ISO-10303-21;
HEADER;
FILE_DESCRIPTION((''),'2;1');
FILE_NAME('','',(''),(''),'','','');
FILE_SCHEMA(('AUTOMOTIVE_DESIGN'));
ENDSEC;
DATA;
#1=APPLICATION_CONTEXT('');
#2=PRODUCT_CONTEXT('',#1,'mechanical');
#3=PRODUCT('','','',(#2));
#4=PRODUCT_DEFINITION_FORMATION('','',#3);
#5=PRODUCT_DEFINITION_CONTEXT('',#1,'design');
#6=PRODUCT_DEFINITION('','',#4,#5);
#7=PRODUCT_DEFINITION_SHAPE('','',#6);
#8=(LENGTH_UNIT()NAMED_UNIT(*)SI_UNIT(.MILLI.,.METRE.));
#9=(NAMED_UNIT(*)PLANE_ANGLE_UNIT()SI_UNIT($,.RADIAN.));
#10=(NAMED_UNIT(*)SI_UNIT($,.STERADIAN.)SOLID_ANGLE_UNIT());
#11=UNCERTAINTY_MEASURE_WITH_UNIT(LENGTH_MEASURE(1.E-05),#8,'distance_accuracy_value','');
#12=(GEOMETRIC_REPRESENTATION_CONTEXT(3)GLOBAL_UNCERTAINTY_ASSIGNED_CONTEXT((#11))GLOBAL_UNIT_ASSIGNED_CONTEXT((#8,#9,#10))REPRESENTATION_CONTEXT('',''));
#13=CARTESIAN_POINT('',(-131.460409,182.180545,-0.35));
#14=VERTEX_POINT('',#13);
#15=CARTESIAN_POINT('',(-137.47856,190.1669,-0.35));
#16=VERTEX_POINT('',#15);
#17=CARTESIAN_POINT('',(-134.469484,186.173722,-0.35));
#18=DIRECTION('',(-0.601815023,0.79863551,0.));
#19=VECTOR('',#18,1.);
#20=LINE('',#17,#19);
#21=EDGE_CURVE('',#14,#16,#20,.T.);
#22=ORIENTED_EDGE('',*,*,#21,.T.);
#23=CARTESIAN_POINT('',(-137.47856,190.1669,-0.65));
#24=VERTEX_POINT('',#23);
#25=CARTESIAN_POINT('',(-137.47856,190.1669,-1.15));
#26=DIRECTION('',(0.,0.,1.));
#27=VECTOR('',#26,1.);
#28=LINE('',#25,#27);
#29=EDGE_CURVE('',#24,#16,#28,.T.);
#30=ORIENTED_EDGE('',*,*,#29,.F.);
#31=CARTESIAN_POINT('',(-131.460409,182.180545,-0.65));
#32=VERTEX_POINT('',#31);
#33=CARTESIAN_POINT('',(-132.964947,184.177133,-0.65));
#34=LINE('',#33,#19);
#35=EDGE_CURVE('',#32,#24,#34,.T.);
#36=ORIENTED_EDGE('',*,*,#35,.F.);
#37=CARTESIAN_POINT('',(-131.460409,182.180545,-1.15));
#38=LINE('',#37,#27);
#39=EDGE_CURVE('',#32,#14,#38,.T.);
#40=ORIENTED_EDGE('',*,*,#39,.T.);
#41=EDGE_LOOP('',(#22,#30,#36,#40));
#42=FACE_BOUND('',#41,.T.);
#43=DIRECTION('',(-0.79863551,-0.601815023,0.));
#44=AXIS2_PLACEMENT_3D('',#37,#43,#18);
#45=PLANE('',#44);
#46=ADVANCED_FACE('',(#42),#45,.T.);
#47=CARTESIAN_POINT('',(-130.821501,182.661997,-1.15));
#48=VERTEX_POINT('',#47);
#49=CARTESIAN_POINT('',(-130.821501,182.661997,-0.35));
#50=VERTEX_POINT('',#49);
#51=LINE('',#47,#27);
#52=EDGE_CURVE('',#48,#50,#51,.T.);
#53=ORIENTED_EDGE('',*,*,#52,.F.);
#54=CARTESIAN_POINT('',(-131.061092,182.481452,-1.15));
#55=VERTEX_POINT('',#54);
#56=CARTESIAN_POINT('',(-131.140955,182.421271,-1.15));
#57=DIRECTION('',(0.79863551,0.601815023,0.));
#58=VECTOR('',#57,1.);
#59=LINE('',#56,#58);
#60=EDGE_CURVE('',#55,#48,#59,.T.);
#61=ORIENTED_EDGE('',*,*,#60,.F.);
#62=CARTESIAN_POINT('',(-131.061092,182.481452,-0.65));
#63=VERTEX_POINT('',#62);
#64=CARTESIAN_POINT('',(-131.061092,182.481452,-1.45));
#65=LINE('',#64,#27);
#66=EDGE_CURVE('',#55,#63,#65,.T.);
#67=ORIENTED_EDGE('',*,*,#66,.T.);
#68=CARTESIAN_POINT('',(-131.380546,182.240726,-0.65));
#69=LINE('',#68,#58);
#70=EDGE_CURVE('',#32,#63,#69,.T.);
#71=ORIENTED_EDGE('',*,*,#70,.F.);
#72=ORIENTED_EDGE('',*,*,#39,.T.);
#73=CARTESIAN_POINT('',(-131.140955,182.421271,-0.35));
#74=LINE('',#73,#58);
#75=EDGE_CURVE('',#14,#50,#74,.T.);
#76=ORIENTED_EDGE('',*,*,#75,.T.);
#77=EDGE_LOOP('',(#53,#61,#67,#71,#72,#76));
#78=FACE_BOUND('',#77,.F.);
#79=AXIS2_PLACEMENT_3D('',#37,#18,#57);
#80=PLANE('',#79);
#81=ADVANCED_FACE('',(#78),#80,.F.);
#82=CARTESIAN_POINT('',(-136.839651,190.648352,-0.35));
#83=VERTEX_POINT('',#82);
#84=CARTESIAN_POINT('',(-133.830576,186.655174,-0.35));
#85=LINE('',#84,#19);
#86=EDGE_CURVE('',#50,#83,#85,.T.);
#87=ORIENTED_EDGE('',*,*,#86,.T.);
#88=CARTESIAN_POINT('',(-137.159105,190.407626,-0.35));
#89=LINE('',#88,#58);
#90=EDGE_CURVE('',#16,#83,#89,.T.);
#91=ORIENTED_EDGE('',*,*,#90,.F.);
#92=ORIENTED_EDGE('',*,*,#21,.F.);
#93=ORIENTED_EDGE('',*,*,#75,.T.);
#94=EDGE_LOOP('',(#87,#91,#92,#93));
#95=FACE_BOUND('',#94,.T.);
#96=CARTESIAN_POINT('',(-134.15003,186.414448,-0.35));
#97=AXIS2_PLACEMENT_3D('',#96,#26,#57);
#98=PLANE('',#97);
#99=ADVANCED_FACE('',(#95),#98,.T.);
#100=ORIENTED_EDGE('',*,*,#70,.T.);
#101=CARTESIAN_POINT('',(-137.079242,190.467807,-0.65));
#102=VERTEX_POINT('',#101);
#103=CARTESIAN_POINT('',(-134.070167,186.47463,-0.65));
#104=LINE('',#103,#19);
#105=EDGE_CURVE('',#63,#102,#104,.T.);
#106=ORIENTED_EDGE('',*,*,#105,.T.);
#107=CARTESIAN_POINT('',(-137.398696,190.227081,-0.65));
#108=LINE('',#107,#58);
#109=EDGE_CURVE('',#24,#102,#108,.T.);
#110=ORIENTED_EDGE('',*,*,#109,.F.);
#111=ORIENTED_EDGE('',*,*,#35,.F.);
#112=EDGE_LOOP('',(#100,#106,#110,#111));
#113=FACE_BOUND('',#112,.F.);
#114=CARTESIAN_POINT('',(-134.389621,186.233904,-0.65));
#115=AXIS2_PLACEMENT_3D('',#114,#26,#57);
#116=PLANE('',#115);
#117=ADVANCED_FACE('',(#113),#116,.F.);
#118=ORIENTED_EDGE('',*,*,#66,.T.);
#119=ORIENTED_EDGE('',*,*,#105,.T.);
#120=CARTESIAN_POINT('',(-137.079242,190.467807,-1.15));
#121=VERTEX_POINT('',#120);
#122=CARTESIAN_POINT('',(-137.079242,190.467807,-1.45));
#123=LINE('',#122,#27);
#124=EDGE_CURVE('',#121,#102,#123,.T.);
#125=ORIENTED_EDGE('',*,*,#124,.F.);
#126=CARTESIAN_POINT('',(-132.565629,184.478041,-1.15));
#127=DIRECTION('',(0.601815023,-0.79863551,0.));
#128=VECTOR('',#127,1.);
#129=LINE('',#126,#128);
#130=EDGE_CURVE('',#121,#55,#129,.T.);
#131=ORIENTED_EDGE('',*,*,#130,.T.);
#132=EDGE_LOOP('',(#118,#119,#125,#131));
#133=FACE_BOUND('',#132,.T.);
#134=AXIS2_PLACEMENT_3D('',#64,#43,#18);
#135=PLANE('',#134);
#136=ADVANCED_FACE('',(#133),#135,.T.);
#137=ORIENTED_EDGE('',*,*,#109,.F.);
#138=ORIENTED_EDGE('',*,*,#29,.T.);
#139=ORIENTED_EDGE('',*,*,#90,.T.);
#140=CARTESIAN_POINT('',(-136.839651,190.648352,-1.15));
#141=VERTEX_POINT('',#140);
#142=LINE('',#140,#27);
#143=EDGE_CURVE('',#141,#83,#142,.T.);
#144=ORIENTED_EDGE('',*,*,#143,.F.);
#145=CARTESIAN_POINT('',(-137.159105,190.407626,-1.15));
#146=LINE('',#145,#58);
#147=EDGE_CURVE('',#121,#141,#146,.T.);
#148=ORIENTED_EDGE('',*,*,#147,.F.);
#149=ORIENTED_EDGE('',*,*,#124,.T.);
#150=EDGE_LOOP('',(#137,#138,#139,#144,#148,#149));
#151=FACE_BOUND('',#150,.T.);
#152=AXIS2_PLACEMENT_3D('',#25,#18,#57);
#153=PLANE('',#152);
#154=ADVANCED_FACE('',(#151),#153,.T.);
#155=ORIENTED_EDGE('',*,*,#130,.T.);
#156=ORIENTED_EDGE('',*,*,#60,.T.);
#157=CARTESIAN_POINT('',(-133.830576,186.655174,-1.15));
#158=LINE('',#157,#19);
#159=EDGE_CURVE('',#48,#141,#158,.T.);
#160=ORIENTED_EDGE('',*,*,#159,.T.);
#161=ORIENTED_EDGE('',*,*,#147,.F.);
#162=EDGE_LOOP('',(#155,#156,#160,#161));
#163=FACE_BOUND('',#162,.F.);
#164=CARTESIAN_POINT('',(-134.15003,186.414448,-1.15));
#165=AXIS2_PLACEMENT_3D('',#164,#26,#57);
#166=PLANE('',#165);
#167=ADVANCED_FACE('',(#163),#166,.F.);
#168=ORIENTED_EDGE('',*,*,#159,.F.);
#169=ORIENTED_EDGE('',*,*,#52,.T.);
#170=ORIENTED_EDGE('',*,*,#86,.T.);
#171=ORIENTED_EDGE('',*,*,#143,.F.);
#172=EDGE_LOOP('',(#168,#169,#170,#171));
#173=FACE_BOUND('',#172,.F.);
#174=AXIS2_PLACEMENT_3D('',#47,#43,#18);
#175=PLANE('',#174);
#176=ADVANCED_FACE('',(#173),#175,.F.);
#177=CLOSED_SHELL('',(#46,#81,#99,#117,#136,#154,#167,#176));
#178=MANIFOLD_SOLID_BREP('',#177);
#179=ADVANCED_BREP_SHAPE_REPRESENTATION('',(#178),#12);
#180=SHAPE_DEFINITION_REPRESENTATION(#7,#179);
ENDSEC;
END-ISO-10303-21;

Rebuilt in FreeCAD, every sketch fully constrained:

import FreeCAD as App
import Part
import Sketcher

doc = App.newDocument("Part")
body = doc.addObject("PartDesign::Body", "Body")

# Sketch on XY plane
sketch1 = body.newObject("Sketcher::SketchObject", "Sketch")
sketch1.AttachmentSupport = (doc.getObject("XY_Plane"), [""])
sketch1.MapMode = "FlatFace"
sketch1.addGeometry(Part.LineSegment(App.Vector(0, 10, 0), App.Vector(0, 0, 0)), False)
sketch1.addGeometry(Part.LineSegment(App.Vector(0, 0, 0), App.Vector(0.8, 0, 0)), False)
sketch1.addGeometry(Part.LineSegment(App.Vector(0.8, 0, 0), App.Vector(0.8, 10, 0)), False)
sketch1.addGeometry(Part.LineSegment(App.Vector(0.8, 10, 0), App.Vector(0, 10, 0)), False)
sketch1.addConstraint(Sketcher.Constraint("Coincident", 0, 2, 1, 1))
sketch1.addConstraint(Sketcher.Constraint("Coincident", 1, 2, 2, 1))
sketch1.addConstraint(Sketcher.Constraint("Coincident", 2, 2, 3, 1))
sketch1.addConstraint(Sketcher.Constraint("Coincident", 3, 2, 0, 1))
sketch1.addConstraint(Sketcher.Constraint("Vertical", 0))
sketch1.addConstraint(Sketcher.Constraint("Horizontal", 1))
sketch1.addConstraint(Sketcher.Constraint("Vertical", 2))
sketch1.addConstraint(Sketcher.Constraint("Horizontal", 3))
sketch1.addConstraint(Sketcher.Constraint("Coincident", 0, 2, -1, 1))
sketch1.addConstraint(Sketcher.Constraint("DistanceY", 0, 2, 0, 1, 10.0))
sketch1.addConstraint(Sketcher.Constraint("DistanceX", 1, 1, 1, 2, 0.8))
pad1 = body.newObject("PartDesign::Pad", "Pad")
pad1.Profile = sketch1
pad1.Length = 0.8
body2 = doc.addObject("PartDesign::Body", "Body001")

# Sketch on XY plane
sketch2 = body2.newObject("Sketcher::SketchObject", "Sketch001")
sketch2.AttachmentSupport = (doc.getObject("XY_Plane001"), [""])
sketch2.MapMode = "FlatFace"
sketch2.AttachmentOffset = App.Placement(App.Vector(0, 0, 0.3), App.Rotation())
sketch2.addGeometry(Part.LineSegment(App.Vector(0.3, 10, 0), App.Vector(0.3, 0, 0)), False)
sketch2.addGeometry(Part.LineSegment(App.Vector(0.3, 0, 0), App.Vector(1.1, 0, 0)), False)
sketch2.addGeometry(Part.LineSegment(App.Vector(1.1, 0, 0), App.Vector(1.1, 10, 0)), False)
sketch2.addGeometry(Part.LineSegment(App.Vector(1.1, 10, 0), App.Vector(0.3, 10, 0)), False)
sketch2.addConstraint(Sketcher.Constraint("Coincident", 0, 2, 1, 1))
sketch2.addConstraint(Sketcher.Constraint("Coincident", 1, 2, 2, 1))
sketch2.addConstraint(Sketcher.Constraint("Coincident", 2, 2, 3, 1))
sketch2.addConstraint(Sketcher.Constraint("Coincident", 3, 2, 0, 1))
sketch2.addConstraint(Sketcher.Constraint("Vertical", 0))
sketch2.addConstraint(Sketcher.Constraint("Horizontal", 1))
sketch2.addConstraint(Sketcher.Constraint("Vertical", 2))
sketch2.addConstraint(Sketcher.Constraint("Horizontal", 3))
sketch2.addConstraint(Sketcher.Constraint("PointOnObject", 0, 2, -1))
sketch2.addConstraint(Sketcher.Constraint("DistanceY", 0, 2, 0, 1, 10.0))
sketch2.addConstraint(Sketcher.Constraint("DistanceX", 1, 1, 1, 2, 0.8))
sketch2.addConstraint(Sketcher.Constraint("DistanceX", -1, 1, 0, 2, 0.3))
pad2 = body2.newObject("PartDesign::Pad", "Pad001")
pad2.Profile = sketch2
pad2.Length = 0.8
doc.recompute()

boolean = body2.newObject("PartDesign::Boolean", "Boolean")
boolean.Type = "Cut"
boolean.addObjects([body])
body3 = doc.addObject("PartDesign::Body", "Body002")
doc.recompute()

body2.Placement = App.Placement(App.Vector(-131.7, 182, -1.45), App.Rotation(App.Vector(0, 0, 1), 37))
boolean2 = body3.newObject("PartDesign::Boolean", "Boolean001")
boolean2.Type = "Fuse"
boolean2.addObjects([body2])

doc.recompute()
